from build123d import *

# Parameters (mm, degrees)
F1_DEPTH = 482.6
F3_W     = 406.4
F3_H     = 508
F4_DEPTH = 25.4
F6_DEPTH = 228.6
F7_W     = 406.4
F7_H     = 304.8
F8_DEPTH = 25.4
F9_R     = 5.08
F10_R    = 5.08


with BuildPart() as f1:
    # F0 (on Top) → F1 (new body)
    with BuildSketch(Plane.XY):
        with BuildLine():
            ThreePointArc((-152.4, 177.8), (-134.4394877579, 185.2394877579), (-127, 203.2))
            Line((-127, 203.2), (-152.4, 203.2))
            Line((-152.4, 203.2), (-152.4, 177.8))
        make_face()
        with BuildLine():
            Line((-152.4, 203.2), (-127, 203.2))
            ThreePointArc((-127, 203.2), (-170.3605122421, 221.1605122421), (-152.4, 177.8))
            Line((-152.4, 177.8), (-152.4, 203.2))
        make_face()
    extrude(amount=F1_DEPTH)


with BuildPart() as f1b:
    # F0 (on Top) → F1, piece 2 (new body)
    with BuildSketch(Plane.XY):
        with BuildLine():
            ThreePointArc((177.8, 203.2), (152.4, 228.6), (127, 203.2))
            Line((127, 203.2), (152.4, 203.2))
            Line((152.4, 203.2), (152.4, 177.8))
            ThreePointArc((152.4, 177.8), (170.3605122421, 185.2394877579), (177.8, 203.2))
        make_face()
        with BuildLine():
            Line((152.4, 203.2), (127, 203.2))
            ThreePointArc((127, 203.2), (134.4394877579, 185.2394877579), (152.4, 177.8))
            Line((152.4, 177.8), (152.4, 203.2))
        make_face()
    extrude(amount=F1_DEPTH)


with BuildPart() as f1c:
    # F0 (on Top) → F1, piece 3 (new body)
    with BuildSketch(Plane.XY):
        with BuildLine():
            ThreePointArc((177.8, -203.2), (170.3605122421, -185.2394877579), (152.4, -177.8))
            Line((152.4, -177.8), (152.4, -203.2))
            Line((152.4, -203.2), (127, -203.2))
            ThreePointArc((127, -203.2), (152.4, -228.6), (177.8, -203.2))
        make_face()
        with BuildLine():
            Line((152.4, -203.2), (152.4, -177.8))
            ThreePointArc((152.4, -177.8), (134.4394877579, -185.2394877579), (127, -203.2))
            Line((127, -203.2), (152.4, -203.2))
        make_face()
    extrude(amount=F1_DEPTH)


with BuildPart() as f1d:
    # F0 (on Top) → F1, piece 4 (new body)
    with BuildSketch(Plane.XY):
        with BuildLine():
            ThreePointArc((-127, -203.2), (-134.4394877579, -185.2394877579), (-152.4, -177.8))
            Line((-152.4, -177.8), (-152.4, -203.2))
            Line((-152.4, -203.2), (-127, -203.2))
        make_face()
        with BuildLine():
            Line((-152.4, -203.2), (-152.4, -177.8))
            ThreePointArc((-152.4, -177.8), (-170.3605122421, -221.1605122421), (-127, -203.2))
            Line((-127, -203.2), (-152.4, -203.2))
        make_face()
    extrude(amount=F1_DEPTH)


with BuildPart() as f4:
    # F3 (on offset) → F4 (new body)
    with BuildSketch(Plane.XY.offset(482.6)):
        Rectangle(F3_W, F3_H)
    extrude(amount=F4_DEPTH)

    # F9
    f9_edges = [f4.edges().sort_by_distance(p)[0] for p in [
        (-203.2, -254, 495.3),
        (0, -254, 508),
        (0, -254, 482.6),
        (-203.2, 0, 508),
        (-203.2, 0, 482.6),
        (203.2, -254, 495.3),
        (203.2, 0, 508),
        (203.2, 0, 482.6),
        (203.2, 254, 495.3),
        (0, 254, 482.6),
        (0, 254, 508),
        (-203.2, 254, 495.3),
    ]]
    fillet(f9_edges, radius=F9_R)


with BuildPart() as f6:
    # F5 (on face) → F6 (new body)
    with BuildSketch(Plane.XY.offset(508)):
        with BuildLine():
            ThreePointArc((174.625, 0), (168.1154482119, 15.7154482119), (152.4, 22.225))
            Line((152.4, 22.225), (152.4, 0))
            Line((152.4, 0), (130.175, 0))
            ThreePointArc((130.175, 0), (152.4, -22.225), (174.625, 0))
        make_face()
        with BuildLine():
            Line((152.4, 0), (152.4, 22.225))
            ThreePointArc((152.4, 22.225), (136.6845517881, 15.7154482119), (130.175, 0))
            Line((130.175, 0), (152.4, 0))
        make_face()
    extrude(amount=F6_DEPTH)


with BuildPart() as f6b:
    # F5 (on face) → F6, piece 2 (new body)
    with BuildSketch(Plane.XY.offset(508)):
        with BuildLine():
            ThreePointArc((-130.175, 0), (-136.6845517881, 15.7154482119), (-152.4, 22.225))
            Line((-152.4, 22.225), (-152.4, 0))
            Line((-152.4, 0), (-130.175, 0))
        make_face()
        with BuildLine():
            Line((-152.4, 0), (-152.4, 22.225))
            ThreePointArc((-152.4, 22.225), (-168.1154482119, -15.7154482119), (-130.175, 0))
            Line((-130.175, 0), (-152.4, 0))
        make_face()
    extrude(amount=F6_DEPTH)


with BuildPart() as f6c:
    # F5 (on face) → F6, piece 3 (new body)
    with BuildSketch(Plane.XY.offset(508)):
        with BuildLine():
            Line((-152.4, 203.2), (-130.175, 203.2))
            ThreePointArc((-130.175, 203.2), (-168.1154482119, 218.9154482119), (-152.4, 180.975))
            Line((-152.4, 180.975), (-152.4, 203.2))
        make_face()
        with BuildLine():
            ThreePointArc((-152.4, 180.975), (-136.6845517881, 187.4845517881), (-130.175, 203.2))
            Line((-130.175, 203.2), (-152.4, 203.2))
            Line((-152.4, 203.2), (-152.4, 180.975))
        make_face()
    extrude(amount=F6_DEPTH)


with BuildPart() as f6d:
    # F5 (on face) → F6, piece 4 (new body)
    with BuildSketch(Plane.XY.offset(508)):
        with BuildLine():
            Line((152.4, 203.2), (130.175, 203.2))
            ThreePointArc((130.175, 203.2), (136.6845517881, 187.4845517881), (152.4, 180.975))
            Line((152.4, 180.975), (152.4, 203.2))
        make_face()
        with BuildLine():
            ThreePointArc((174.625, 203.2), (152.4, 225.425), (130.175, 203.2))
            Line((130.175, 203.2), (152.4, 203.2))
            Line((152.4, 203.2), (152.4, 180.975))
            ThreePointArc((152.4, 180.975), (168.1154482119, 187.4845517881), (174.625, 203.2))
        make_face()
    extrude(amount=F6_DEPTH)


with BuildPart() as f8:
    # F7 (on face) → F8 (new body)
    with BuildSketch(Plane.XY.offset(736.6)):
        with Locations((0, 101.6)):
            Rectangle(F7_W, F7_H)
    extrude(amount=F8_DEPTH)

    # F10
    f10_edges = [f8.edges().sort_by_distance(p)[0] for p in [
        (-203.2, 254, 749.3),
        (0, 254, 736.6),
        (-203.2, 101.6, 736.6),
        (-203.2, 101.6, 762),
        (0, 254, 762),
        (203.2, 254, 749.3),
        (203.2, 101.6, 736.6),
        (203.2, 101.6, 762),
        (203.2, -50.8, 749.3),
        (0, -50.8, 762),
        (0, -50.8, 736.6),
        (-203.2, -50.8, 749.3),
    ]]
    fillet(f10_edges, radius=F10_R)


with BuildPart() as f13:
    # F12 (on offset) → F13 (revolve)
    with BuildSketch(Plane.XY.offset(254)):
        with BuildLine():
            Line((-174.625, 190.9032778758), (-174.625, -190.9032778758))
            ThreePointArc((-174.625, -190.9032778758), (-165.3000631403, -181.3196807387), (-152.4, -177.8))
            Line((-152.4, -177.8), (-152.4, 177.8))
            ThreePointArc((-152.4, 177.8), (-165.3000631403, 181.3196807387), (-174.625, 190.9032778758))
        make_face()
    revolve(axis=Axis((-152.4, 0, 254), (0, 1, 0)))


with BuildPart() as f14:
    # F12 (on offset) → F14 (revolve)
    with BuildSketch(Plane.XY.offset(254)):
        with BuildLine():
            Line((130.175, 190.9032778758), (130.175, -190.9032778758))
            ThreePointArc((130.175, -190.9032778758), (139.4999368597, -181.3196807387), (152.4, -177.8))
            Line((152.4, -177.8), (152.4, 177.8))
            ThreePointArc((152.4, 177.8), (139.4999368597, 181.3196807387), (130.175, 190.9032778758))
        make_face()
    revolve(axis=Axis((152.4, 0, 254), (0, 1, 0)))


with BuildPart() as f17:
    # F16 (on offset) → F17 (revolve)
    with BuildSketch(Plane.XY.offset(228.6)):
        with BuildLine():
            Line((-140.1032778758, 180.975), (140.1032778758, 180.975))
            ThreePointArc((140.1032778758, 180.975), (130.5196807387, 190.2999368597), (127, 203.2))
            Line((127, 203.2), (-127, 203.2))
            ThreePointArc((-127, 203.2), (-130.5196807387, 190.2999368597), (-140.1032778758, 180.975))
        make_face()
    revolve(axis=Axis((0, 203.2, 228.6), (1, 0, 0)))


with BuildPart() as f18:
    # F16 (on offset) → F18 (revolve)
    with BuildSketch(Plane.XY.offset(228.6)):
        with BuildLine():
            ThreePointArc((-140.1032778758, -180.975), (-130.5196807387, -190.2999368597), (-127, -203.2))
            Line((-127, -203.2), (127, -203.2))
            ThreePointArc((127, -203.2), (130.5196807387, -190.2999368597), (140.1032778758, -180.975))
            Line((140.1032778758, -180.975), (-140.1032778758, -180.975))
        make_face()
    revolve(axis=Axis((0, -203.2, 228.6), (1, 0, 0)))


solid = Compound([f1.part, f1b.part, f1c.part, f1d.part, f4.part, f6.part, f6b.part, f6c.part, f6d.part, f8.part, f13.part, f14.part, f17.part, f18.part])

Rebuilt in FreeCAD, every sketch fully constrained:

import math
import FreeCAD as App
import Part
import Sketcher

V = App.Vector
Q = App.Units.Quantity

doc = App.newDocument("Part")
body = doc.addObject("PartDesign::Body", "Body")

sketch1 = body.newObject("Sketcher::SketchObject", "Sketch")
sketch1.AttachmentSupport = (doc.getObject("XY_Plane"), [""])
sketch1.MapMode = "FlatFace"
sketch1.addGeometry([
    Part.ArcOfCircle(Part.Circle(V(-152, 203, 0), V(0, 0, 1), 25), math.radians(-90), math.radians(0)),
    Part.ArcOfCircle(Part.Circle(V(-152, 203, 0), V(0, 0, 1), 25), math.radians(0), math.radians(270)),
], False)
sketch1.addConstraint([
    Sketcher.Constraint("Tangent", 0, 1, 1, 2),
    Sketcher.Constraint("Coincident", 1, 1, 0, 2),
    Sketcher.Constraint("Horizontal", 0, 3, 1, 1),
    Sketcher.Constraint("Vertical", 1, 3, 0, 1),
    Sketcher.Constraint("Radius", 0, Q("1 in")),
    Sketcher.Constraint("DistanceX", 0, 3, -1, 1, Q("6 in")),
    Sketcher.Constraint("DistanceY", -1, 1, 0, 3, Q("8 in")),
])
pad1 = body.newObject("PartDesign::Pad", "Pad")
pad1.Profile = sketch1
pad1.Length = Q("19 in")
body2 = doc.addObject("PartDesign::Body", "Body001")

sketch2 = body2.newObject("Sketcher::SketchObject", "Sketch001")
sketch2.AttachmentSupport = (doc.getObject("XY_Plane001"), [""])
sketch2.MapMode = "FlatFace"
sketch2.addGeometry([
    Part.ArcOfCircle(Part.Circle(V(152, 203, 0), V(0, 0, 1), 25), math.radians(0), math.radians(180)),
    Part.ArcOfCircle(Part.Circle(V(152, 203, 0), V(0, 0, 1), 25), math.radians(180), math.radians(270)),
    Part.ArcOfCircle(Part.Circle(V(152, 203, 0), V(0, 0, 1), 25), math.radians(-90), math.radians(0)),
], False)
sketch2.addConstraint([
    Sketcher.Constraint("Tangent", 0, 2, 1, 1),
    Sketcher.Constraint("Tangent", 1, 2, 2, 1),
    Sketcher.Constraint("Tangent", 2, 2, 0, 1),
    Sketcher.Constraint("Horizontal", 2, 3, 0, 2),
    Sketcher.Constraint("Horizontal", 0, 2, 2, 2),
    Sketcher.Constraint("Vertical", 2, 3, 1, 2),
    Sketcher.Constraint("Radius", 0, Q("1 in")),
    Sketcher.Constraint("DistanceX", -1, 1, 0, 3, Q("6 in")),
    Sketcher.Constraint("DistanceY", -1, 1, 0, 3, Q("8 in")),
])
pad2 = body2.newObject("PartDesign::Pad", "Pad001")
pad2.Profile = sketch2
pad2.Length = Q("19 in")
body3 = doc.addObject("PartDesign::Body", "Body002")

sketch3 = body3.newObject("Sketcher::SketchObject", "Sketch002")
sketch3.AttachmentSupport = (doc.getObject("XY_Plane002"), [""])
sketch3.MapMode = "FlatFace"
sketch3.addGeometry([
    Part.ArcOfCircle(Part.Circle(V(152, -203, 0), V(0, 0, 1), 25), math.radians(0), math.radians(90)),
    Part.ArcOfCircle(Part.Circle(V(152, -203, 0), V(0, 0, 1), 25), math.radians(90), math.radians(180)),
    Part.ArcOfCircle(Part.Circle(V(152, -203, 0), V(0, 0, 1), 25), math.radians(180), math.radians(360)),
], False)
sketch3.addConstraint([
    Sketcher.Constraint("Tangent", 0, 2, 1, 1),
    Sketcher.Constraint("Tangent", 1, 2, 2, 1),
    Sketcher.Constraint("Tangent", 2, 2, 0, 1),
    Sketcher.Constraint("Horizontal", 2, 3, 1, 2),
    Sketcher.Constraint("Horizontal", 1, 2, 2, 2),
    Sketcher.Constraint("Vertical", 2, 3, 0, 2),
    Sketcher.Constraint("Radius", 0, Q("1 in")),
    Sketcher.Constraint("DistanceX", -1, 1, 0, 3, Q("6 in")),
    Sketcher.Constraint("DistanceY", 0, 3, -1, 1, Q("8 in")),
])
pad3 = body3.newObject("PartDesign::Pad", "Pad002")
pad3.Profile = sketch3
pad3.Length = Q("19 in")
body4 = doc.addObject("PartDesign::Body", "Body003")

sketch4 = body4.newObject("Sketcher::SketchObject", "Sketch003")
sketch4.AttachmentSupport = (doc.getObject("XY_Plane003"), [""])
sketch4.MapMode = "FlatFace"
sketch4.addGeometry([
    Part.ArcOfCircle(Part.Circle(V(-152, -203, 0), V(0, 0, 1), 25), math.radians(0), math.radians(90)),
    Part.ArcOfCircle(Part.Circle(V(-152, -203, 0), V(0, 0, 1), 25), math.radians(90), math.radians(360)),
], False)
sketch4.addConstraint([
    Sketcher.Constraint("Tangent", 0, 1, 1, 2),
    Sketcher.Constraint("Coincident", 1, 1, 0, 2),
    Sketcher.Constraint("Horizontal", 1, 3, 0, 1),
    Sketcher.Constraint("Vertical", 0, 3, 1, 1),
    Sketcher.Constraint("Radius", 0, Q("1 in")),
    Sketcher.Constraint("DistanceX", 0, 3, -1, 1, Q("6 in")),
    Sketcher.Constraint("DistanceY", 0, 3, -1, 1, Q("8 in")),
])
pad4 = body4.newObject("PartDesign::Pad", "Pad003")
pad4.Profile = sketch4
pad4.Length = Q("19 in")
body5 = doc.addObject("PartDesign::Body", "Body004")

sketch5 = body5.newObject("Sketcher::SketchObject", "Sketch004")
sketch5.AttachmentSupport = (doc.getObject("XY_Plane004"), [""])
sketch5.MapMode = "FlatFace"
sketch5.AttachmentOffset = App.Placement(V(0, 0, 19 * 25.4), App.Rotation())
sketch5.addGeometry([
    Part.LineSegment(V(-203, 254, 0), V(-203, -254, 0)),
    Part.LineSegment(V(-203, -254, 0), V(203, -254, 0)),
    Part.LineSegment(V(203, -254, 0), V(203, 254, 0)),
    Part.LineSegment(V(203, 254, 0), V(-203, 254, 0)),
], False)
sketch5.addConstraint([
    Sketcher.Constraint("Coincident", 0, 2, 1, 1),
    Sketcher.Constraint("Coincident", 1, 2, 2, 1),
    Sketcher.Constraint("Coincident", 2, 2, 3, 1),
    Sketcher.Constraint("Coincident", 3, 2, 0, 1),
    Sketcher.Constraint("Vertical", 0),
    Sketcher.Constraint("Horizontal", 1),
    Sketcher.Constraint("Vertical", 2),
    Sketcher.Constraint("Horizontal", 3),
    Sketcher.Constraint("Symmetric", 0, 2, 2, 2, -1, 1),
    Sketcher.Constraint("DistanceX", 1, 1, 1, 2, Q("16 in")),
    Sketcher.Constraint("DistanceY", 0, 2, 0, 1, Q("20 in")),
])
pad5 = body5.newObject("PartDesign::Pad", "Pad004")
pad5.Profile = sketch5
pad5.Length = Q("1 in")
doc.recompute()

fillet = body5.newObject("PartDesign::Fillet", "Fillet")
fillet.Base = (pad5, ["Edge1"])
fillet.UseAllEdges = True
fillet.Radius = Q("0.2 in")
body6 = doc.addObject("PartDesign::Body", "Body005")

sketch6 = body6.newObject("Sketcher::SketchObject", "Sketch005")
sketch6.AttachmentSupport = (doc.getObject("XY_Plane005"), [""])
sketch6.MapMode = "FlatFace"
sketch6.AttachmentOffset = App.Placement(V(0, 0, 20 * 25.4), App.Rotation())
sketch6.addGeometry([
    Part.ArcOfCircle(Part.Circle(V(152, 0, 0), V(0, 0, 1), 22), math.radians(0), math.radians(90)),
    Part.ArcOfCircle(Part.Circle(V(152, 0, 0), V(0, 0, 1), 22), math.radians(90), math.radians(180)),
    Part.ArcOfCircle(Part.Circle(V(152, 0, 0), V(0, 0, 1), 22), math.radians(180), math.radians(360)),
], False)
sketch6.addConstraint([
    Sketcher.Constraint("Tangent", 0, 2, 1, 1),
    Sketcher.Constraint("Tangent", 1, 2, 2, 1),
    Sketcher.Constraint("Tangent", 2, 2, 0, 1),
    Sketcher.Constraint("PointOnObject", 0, 3, -1),
    Sketcher.Constraint("PointOnObject", 1, 2, -1),
    Sketcher.Constraint("PointOnObject", 2, 2, -1),
    Sketcher.Constraint("Vertical", 2, 3, 0, 2),
    Sketcher.Constraint("DistanceX", -1, 1, 0, 3, Q("6 in")),
    Sketcher.Constraint("Radius", 0, Q("0.875 in")),
])
pad6 = body6.newObject("PartDesign::Pad", "Pad005")
pad6.Profile = sketch6
pad6.Length = Q("9 in")
body7 = doc.addObject("PartDesign::Body", "Body006")

sketch7 = body7.newObject("Sketcher::SketchObject", "Sketch006")
sketch7.AttachmentSupport = (doc.getObject("XY_Plane006"), [""])
sketch7.MapMode = "FlatFace"
sketch7.AttachmentOffset = App.Placement(V(0, 0, 20 * 25.4), App.Rotation())
sketch7.addGeometry([
    Part.ArcOfCircle(Part.Circle(V(-152, 0, 0), V(0, 0, 1), 22), math.radians(0), math.radians(90)),
    Part.ArcOfCircle(Part.Circle(V(-152, 0, 0), V(0, 0, 1), 22), math.radians(90), math.radians(360)),
], False)
sketch7.addConstraint([
    Sketcher.Constraint("Tangent", 0, 1, 1, 2),
    Sketcher.Constraint("Coincident", 1, 1, 0, 2),
    Sketcher.Constraint("PointOnObject", 0, 3, -1),
    Sketcher.Constraint("PointOnObject", 0, 1, -1),
    Sketcher.Constraint("Vertical", 0, 3, 1, 1),
    Sketcher.Constraint("DistanceX", 0, 3, -1, 1, Q("6 in")),
    Sketcher.Constraint("Radius", 0, Q("0.875 in")),
])
pad7 = body7.newObject("PartDesign::Pad", "Pad006")
pad7.Profile = sketch7
pad7.Length = Q("9 in")
body8 = doc.addObject("PartDesign::Body", "Body007")

sketch8 = body8.newObject("Sketcher::SketchObject", "Sketch007")
sketch8.AttachmentSupport = (doc.getObject("XY_Plane007"), [""])
sketch8.MapMode = "FlatFace"
sketch8.AttachmentOffset = App.Placement(V(0, 0, 20 * 25.4), App.Rotation())
sketch8.addGeometry([
    Part.ArcOfCircle(Part.Circle(V(-152, 203, 0), V(0, 0, 1), 22), math.radians(0), math.radians(270)),
    Part.ArcOfCircle(Part.Circle(V(-152, 203, 0), V(0, 0, 1), 22), math.radians(-90), math.radians(0)),
], False)
sketch8.addConstraint([
    Sketcher.Constraint("Tangent", 0, 1, 1, 2),
    Sketcher.Constraint("Coincident", 1, 1, 0, 2),
    Sketcher.Constraint("Horizontal", 1, 3, 0, 1),
    Sketcher.Constraint("Vertical", 0, 3, 1, 1),
    Sketcher.Constraint("DistanceX", 0, 3, -1, 1, Q("6 in")),
    Sketcher.Constraint("DistanceY", -1, 1, 0, 3, Q("8 in")),
    Sketcher.Constraint("Radius", 0, Q("0.875 in")),
])
pad8 = body8.newObject("PartDesign::Pad", "Pad007")
pad8.Profile = sketch8
pad8.Length = Q("9 in")
body9 = doc.addObject("PartDesign::Body", "Body008")

sketch9 = body9.newObject("Sketcher::SketchObject", "Sketch008")
sketch9.AttachmentSupport = (doc.getObject("XY_Plane008"), [""])
sketch9.MapMode = "FlatFace"
sketch9.AttachmentOffset = App.Placement(V(0, 0, 20 * 25.4), App.Rotation())
sketch9.addGeometry([
    Part.ArcOfCircle(Part.Circle(V(152, 203, 0), V(0, 0, 1), 22), math.radians(180), math.radians(270)),
    Part.ArcOfCircle(Part.Circle(V(152, 203, 0), V(0, 0, 1), 22), math.radians(-90), math.radians(0)),
    Part.ArcOfCircle(Part.Circle(V(152, 203, 0), V(0, 0, 1), 22), math.radians(0), math.radians(180)),
], False)
sketch9.addConstraint([
    Sketcher.Constraint("Tangent", 0, 2, 1, 1),
    Sketcher.Constraint("Tangent", 1, 2, 2, 1),
    Sketcher.Constraint("Tangent", 2, 2, 0, 1),
    Sketcher.Constraint("Horizontal", 2, 3, 1, 2),
    Sketcher.Constraint("Horizontal", 1, 2, 2, 2),
    Sketcher.Constraint("Vertical", 2, 3, 0, 2),
    Sketcher.Constraint("DistanceX", -1, 1, 0, 3, Q("6 in")),
    Sketcher.Constraint("DistanceY", -1, 1, 0, 3, Q("8 in")),
    Sketcher.Constraint("Radius", 0, Q("0.875 in")),
])
pad9 = body9.newObject("PartDesign::Pad", "Pad008")
pad9.Profile = sketch9
pad9.Length = Q("9 in")
body10 = doc.addObject("PartDesign::Body", "Body009")

sketch10 = body10.newObject("Sketcher::SketchObject", "Sketch009")
sketch10.AttachmentSupport = (doc.getObject("XY_Plane009"), [""])
sketch10.MapMode = "FlatFace"
sketch10.AttachmentOffset = App.Placement(V(0, 0, 29 * 25.4), App.Rotation())
sketch10.addGeometry([
    Part.LineSegment(V(-203, 254, 0), V(-203, -51, 0)),
    Part.LineSegment(V(-203, -51, 0), V(203, -51, 0)),
    Part.LineSegment(V(203, -51, 0), V(203, 254, 0)),
    Part.LineSegment(V(203, 254, 0), V(-203, 254, 0)),
], False)
sketch10.addConstraint([
    Sketcher.Constraint("Coincident", 0, 2, 1, 1),
    Sketcher.Constraint("Coincident", 1, 2, 2, 1),
    Sketcher.Constraint("Coincident", 2, 2, 3, 1),
    Sketcher.Constraint("Coincident", 3, 2, 0, 1),
    Sketcher.Constraint("Vertical", 0),
    Sketcher.Constraint("Horizontal", 1),
    Sketcher.Constraint("Vertical", 2),
    Sketcher.Constraint("Horizontal", 3),
    Sketcher.Constraint("DistanceX", 1, 1, 1, 2, Q("16 in")),
    Sketcher.Constraint("DistanceY", 0, 2, 0, 1, Q("12 in")),
    Sketcher.Constraint("DistanceX", 0, 2, -1, 1, Q("8 in")),
    Sketcher.Constraint("DistanceY", 0, 2, -1, 1, Q("2 in")),
])
pad10 = body10.newObject("PartDesign::Pad", "Pad009")
pad10.Profile = sketch10
pad10.Length = Q("1 in")
doc.recompute()

fillet2 = body10.newObject("PartDesign::Fillet", "Fillet001")
fillet2.Base = (pad10, ["Edge1"])
fillet2.UseAllEdges = True
fillet2.Radius = Q("0.2 in")
body11 = doc.addObject("PartDesign::Body", "Body010")

sketch11 = body11.newObject("Sketcher::SketchObject", "Sketch010")
sketch11.AttachmentSupport = (doc.getObject("XY_Plane010"), [""])
sketch11.MapMode = "FlatFace"
sketch11.AttachmentOffset = App.Placement(V(0, 0, 10 * 25.4), App.Rotation())
sketch11.addGeometry([
    Part.LineSegment(V(-175, 191, 0), V(-175, -191, 0)),
    Part.ArcOfCircle(Part.Circle(V(-152, -203, 0), V(0, 0, 1), 25), math.radians(90), math.radians(151)),
    Part.LineSegment(V(-152, -178, 0), V(-152, 178, 0)),
    Part.ArcOfCircle(Part.Circle(V(-152, 203, 0), V(0, 0, 1), 25), math.radians(-151), math.radians(-90)),
], False)
sketch11.addGeometry(Part.LineSegment(V(-152, -203, 0), V(-152, 203, 0)), True)
sketch11.addConstraint([
    Sketcher.Constraint("Coincident", 0, 2, 1, 2),
    Sketcher.Constraint("Coincident", 1, 1, 2, 1),
    Sketcher.Constraint("Coincident", 2, 2, 3, 2),
    Sketcher.Constraint("Coincident", 3, 1, 0, 1),
    Sketcher.Constraint("Vertical", 0),
    Sketcher.Constraint("Vertical", 2),
    Sketcher.Constraint("Vertical", 4),
    Sketcher.Constraint("Coincident", 4, 1, 1, 3),
    Sketcher.Constraint("Coincident", 4, 2, 3, 3),
    Sketcher.Constraint("Equal", 1, 3),
    Sketcher.Constraint("Vertical", 3, 3, 1, 1),
    Sketcher.Constraint("Radius", 1, Q("1 in")),
    Sketcher.Constraint("DistanceY", 2, 1, 2, 2, Q("14 in")),
    Sketcher.Constraint("DistanceX", 1, 3, -1, 1, Q("6 in")),
    Sketcher.Constraint("DistanceY", 1, 3, -1, 1, Q("8 in")),
    Sketcher.Constraint("DistanceX", 0, 2, -1, 1, Q("6.875 in")),
])
revolution = body11.newObject("PartDesign::Revolution", "Revolution")
revolution.Profile = sketch11
revolution.ReferenceAxis = (sketch11, ["Axis0"])
revolution.Angle = 360
body12 = doc.addObject("PartDesign::Body", "Body011")

sketch12 = body12.newObject("Sketcher::SketchObject", "Sketch011")
sketch12.AttachmentSupport = (doc.getObject("XY_Plane011"), [""])
sketch12.MapMode = "FlatFace"
sketch12.AttachmentOffset = App.Placement(V(0, 0, 10 * 25.4), App.Rotation())
sketch12.addGeometry([
    Part.LineSegment(V(130, 191, 0), V(130, -191, 0)),
    Part.ArcOfCircle(Part.Circle(V(152, -203, 0), V(0, 0, 1), 25), math.radians(90), math.radians(151)),
    Part.LineSegment(V(152, -178, 0), V(152, 178, 0)),
    Part.ArcOfCircle(Part.Circle(V(152, 203, 0), V(0, 0, 1), 25), math.radians(-151), math.radians(-90)),
], False)
sketch12.addGeometry(Part.LineSegment(V(152, -203, 0), V(152, 203, 0)), True)
sketch12.addConstraint([
    Sketcher.Constraint("Coincident", 0, 2, 1, 2),
    Sketcher.Constraint("Coincident", 1, 1, 2, 1),
    Sketcher.Constraint("Coincident", 2, 2, 3, 2),
    Sketcher.Constraint("Coincident", 3, 1, 0, 1),
    Sketcher.Constraint("Vertical", 0),
    Sketcher.Constraint("Vertical", 2),
    Sketcher.Constraint("Vertical", 4),
    Sketcher.Constraint("Coincident", 4, 1, 1, 3),
    Sketcher.Constraint("Coincident", 4, 2, 3, 3),
    Sketcher.Constraint("Equal", 1, 3),
    Sketcher.Constraint("Vertical", 3, 3, 1, 1),
    Sketcher.Constraint("Radius", 1, Q("1 in")),
    Sketcher.Constraint("DistanceY", 2, 1, 2, 2, Q("14 in")),
    Sketcher.Constraint("DistanceX", -1, 1, 1, 3, Q("6 in")),
    Sketcher.Constraint("DistanceY", 1, 3, -1, 1, Q("8 in")),
    Sketcher.Constraint("DistanceX", -1, 1, 0, 2, Q("5.125 in")),
])
revolution2 = body12.newObject("PartDesign::Revolution", "Revolution001")
revolution2.Profile = sketch12
revolution2.ReferenceAxis = (sketch12, ["Axis0"])
revolution2.Angle = 360
body13 = doc.addObject("PartDesign::Body", "Body012")

sketch13 = body13.newObject("Sketcher::SketchObject", "Sketch012")
sketch13.AttachmentSupport = (doc.getObject("XY_Plane012"), [""])
sketch13.MapMode = "FlatFace"
sketch13.AttachmentOffset = App.Placement(V(0, 0, 9 * 25.4), App.Rotation())
sketch13.addGeometry([
    Part.LineSegment(V(-140, 181, 0), V(140, 181, 0)),
    Part.ArcOfCircle(Part.Circle(V(152, 203, 0), V(0, 0, 1), 25), math.radians(180), math.radians(241)),
    Part.LineSegment(V(127, 203, 0), V(-127, 203, 0)),
    Part.ArcOfCircle(Part.Circle(V(-152, 203, 0), V(0, 0, 1), 25), math.radians(-61), math.radians(0)),
], False)
sketch13.addGeometry(Part.LineSegment(V(-152, 203, 0), V(152, 203, 0)), True)
sketch13.addConstraint([
    Sketcher.Constraint("Coincident", 0, 2, 1, 2),
    Sketcher.Constraint("Coincident", 1, 1, 2, 1),
    Sketcher.Constraint("Coincident", 2, 2, 3, 2),
    Sketcher.Constraint("Coincident", 3, 1, 0, 1),
    Sketcher.Constraint("Horizontal", 0),
    Sketcher.Constraint("Horizontal", 2),
    Sketcher.Constraint("Horizontal", 4),
    Sketcher.Constraint("Coincident", 4, 1, 3, 3),
    Sketcher.Constraint("Coincident", 4, 2, 1, 3),
    Sketcher.Constraint("Equal", 1, 3),
    Sketcher.Constraint("Horizontal", 3, 3, 1, 1),
    Sketcher.Constraint("Radius", 1, Q("1 in")),
    Sketcher.Constraint("DistanceX", 2, 2, 2, 1, Q("10 in")),
    Sketcher.Constraint("DistanceX", -1, 1, 1, 3, Q("6 in")),
    Sketcher.Constraint("DistanceY", -1, 1, 1, 3, Q("8 in")),
    Sketcher.Constraint("DistanceY", -1, 1, 0, 2, Q("7.125 in")),
])
revolution3 = body13.newObject("PartDesign::Revolution", "Revolution002")
revolution3.Profile = sketch13
revolution3.ReferenceAxis = (sketch13, ["Axis0"])
revolution3.Angle = 360
body14 = doc.addObject("PartDesign::Body", "Body013")

sketch14 = body14.newObject("Sketcher::SketchObject", "Sketch013")
sketch14.AttachmentSupport = (doc.getObject("XY_Plane013"), [""])
sketch14.MapMode = "FlatFace"
sketch14.AttachmentOffset = App.Placement(V(0, 0, 9 * 25.4), App.Rotation())
sketch14.addGeometry([
    Part.ArcOfCircle(Part.Circle(V(-152, -203, 0), V(0, 0, 1), 25), math.radians(0), math.radians(61)),
    Part.LineSegment(V(-127, -203, 0), V(127, -203, 0)),
    Part.ArcOfCircle(Part.Circle(V(152, -203, 0), V(0, 0, 1), 25), math.radians(119), math.radians(180)),
    Part.LineSegment(V(140, -181, 0), V(-140, -181, 0)),
], False)
sketch14.addGeometry(Part.LineSegment(V(-152, -203, 0), V(152, -203, 0)), True)
sketch14.addConstraint([
    Sketcher.Constraint("Coincident", 0, 1, 1, 1),
    Sketcher.Constraint("Coincident", 1, 2, 2, 2),
    Sketcher.Constraint("Coincident", 2, 1, 3, 1),
    Sketcher.Constraint("Coincident", 3, 2, 0, 2),
    Sketcher.Constraint("Horizontal", 1),
    Sketcher.Constraint("Horizontal", 3),
    Sketcher.Constraint("Horizontal", 4),
    Sketcher.Constraint("Coincident", 4, 1, 0, 3),
    Sketcher.Constraint("Coincident", 4, 2, 2, 3),
    Sketcher.Constraint("Equal", 0, 2),
    Sketcher.Constraint("Horizontal", 2, 3, 0, 1),
    Sketcher.Constraint("Radius", 0, Q("1 in")),
    Sketcher.Constraint("DistanceX", 1, 1, 1, 2, Q("10 in")),
    Sketcher.Constraint("DistanceX", 0, 3, -1, 1, Q("6 in")),
    Sketcher.Constraint("DistanceY", 0, 3, -1, 1, Q("8 in")),
    Sketcher.Constraint("DistanceY", 2, 1, -1, 1, Q("7.125 in")),
])
revolution4 = body14.newObject("PartDesign::Revolution", "Revolution003")
revolution4.Profile = sketch14
revolution4.ReferenceAxis = (sketch14, ["Axis0"])
revolution4.Angle = 360

doc.recompute()
